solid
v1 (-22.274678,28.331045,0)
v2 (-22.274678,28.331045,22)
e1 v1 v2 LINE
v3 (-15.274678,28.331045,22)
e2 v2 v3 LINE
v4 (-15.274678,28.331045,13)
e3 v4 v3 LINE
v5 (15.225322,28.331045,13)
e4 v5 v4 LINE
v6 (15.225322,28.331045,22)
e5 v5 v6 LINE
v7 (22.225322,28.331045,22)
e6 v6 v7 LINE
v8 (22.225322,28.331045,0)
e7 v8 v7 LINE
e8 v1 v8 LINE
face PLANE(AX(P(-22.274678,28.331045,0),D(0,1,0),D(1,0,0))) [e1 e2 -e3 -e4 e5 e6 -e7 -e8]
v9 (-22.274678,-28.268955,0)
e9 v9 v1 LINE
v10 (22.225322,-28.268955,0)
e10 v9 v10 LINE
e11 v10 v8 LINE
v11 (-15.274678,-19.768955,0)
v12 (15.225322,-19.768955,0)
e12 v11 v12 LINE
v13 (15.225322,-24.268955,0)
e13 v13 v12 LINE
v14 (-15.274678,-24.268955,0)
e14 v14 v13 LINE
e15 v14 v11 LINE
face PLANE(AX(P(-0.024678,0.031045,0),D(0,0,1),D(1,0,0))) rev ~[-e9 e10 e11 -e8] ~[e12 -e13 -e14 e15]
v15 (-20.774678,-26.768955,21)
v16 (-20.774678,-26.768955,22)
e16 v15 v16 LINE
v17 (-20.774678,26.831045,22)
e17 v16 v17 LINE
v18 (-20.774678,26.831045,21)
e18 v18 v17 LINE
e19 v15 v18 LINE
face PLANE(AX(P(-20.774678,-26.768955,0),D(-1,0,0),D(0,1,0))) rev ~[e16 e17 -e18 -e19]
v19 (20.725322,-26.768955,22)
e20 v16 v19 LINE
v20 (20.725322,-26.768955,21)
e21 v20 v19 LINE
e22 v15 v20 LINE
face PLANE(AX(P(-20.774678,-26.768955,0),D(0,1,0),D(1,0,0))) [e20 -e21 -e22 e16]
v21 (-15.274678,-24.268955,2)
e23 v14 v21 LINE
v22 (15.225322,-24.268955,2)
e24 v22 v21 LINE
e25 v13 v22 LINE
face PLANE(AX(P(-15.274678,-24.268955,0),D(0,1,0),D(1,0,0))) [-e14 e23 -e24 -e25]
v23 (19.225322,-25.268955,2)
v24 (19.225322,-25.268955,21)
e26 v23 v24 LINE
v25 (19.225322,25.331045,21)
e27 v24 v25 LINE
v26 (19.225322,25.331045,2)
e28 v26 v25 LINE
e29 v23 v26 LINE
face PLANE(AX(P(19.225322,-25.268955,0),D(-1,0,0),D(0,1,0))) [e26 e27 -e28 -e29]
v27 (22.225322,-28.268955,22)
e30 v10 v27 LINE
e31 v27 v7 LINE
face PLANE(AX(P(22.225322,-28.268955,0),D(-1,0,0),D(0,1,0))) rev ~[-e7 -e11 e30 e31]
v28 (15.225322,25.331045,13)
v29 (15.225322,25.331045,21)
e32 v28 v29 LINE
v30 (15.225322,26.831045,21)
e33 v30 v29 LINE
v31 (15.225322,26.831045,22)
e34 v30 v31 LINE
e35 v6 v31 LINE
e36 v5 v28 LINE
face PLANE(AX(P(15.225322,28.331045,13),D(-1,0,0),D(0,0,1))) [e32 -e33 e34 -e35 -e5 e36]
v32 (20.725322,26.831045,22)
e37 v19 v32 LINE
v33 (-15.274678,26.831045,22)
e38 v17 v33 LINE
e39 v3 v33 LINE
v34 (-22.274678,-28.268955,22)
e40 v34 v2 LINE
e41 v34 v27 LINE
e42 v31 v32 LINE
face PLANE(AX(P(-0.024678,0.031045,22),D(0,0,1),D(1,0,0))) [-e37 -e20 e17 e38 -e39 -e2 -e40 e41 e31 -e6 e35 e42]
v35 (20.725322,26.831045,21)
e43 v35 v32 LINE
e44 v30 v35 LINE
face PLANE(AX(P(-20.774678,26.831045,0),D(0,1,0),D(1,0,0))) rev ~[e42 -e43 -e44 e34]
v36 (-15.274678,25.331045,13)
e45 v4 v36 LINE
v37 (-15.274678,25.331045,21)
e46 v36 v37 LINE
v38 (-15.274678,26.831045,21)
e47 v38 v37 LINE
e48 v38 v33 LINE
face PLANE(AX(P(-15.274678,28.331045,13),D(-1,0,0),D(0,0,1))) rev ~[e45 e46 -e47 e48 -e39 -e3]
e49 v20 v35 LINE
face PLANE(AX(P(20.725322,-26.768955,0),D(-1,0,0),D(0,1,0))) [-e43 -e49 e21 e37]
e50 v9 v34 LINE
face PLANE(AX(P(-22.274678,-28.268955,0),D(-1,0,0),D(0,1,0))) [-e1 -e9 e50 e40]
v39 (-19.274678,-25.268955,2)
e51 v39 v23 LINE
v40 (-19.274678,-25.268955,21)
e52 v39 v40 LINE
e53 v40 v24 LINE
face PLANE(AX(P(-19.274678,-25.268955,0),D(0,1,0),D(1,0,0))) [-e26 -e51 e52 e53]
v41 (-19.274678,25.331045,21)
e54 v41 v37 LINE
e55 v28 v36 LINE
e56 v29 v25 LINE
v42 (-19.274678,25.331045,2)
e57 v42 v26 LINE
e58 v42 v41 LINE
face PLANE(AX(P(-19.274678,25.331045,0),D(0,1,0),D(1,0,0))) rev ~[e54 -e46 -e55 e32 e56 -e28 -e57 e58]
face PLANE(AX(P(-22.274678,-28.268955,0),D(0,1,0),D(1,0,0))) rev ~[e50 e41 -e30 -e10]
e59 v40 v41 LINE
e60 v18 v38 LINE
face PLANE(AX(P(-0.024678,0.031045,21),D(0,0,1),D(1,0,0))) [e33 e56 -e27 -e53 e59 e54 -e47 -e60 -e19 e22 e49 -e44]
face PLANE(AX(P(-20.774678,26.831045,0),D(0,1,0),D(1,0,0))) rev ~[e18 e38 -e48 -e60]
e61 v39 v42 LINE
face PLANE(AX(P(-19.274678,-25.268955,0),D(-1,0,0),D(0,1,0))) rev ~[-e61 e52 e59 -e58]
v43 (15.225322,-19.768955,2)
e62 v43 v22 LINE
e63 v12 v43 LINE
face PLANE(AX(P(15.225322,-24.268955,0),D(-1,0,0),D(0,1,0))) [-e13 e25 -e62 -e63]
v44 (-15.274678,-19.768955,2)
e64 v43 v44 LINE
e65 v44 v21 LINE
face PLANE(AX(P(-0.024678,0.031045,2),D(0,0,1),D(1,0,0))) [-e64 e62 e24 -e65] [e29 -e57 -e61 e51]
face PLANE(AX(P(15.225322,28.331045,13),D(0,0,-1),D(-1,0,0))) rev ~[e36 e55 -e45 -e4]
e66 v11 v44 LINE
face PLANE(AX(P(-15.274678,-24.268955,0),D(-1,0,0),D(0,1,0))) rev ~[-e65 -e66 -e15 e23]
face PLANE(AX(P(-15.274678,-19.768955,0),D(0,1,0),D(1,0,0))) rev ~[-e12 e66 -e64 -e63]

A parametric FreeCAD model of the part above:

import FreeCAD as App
import Part
import Sketcher
from FreeCAD import Vector

doc = App.newDocument("Part")
body = doc.addObject("PartDesign::Body", "Body")

# Sketch on XY plane
sketch1 = body.newObject("Sketcher::SketchObject", "Sketch")
sketch1.AttachmentSupport = (doc.getObject("XY_Plane"), [""])
sketch1.MapMode = "FlatFace"
sketch1.addGeometry(Part.LineSegment(Vector(-19.274678, 25.331045, 0), Vector(-19.274678, -25.268955, 0)), False)
sketch1.addGeometry(Part.LineSegment(Vector(-19.274678, -25.268955, 0), Vector(19.225322, -25.268955, 0)), False)
sketch1.addGeometry(Part.LineSegment(Vector(19.225322, -25.268955, 0), Vector(19.225322, 25.331045, 0)), False)
sketch1.addGeometry(Part.LineSegment(Vector(19.225322, 25.331045, 0), Vector(-19.274678, 25.331045, 0)), False)
sketch1.addConstraint(Sketcher.Constraint("Coincident", 0, 2, 1, 1))
sketch1.addConstraint(Sketcher.Constraint("Coincident", 1, 2, 2, 1))
sketch1.addConstraint(Sketcher.Constraint("Coincident", 2, 2, 3, 1))
sketch1.addConstraint(Sketcher.Constraint("Coincident", 3, 2, 0, 1))
sketch1.addConstraint(Sketcher.Constraint("Vertical", 0))
sketch1.addConstraint(Sketcher.Constraint("Horizontal", 1))
sketch1.addConstraint(Sketcher.Constraint("Vertical", 2))
sketch1.addConstraint(Sketcher.Constraint("Horizontal", 3))
sketch1.addConstraint(Sketcher.Constraint("DistanceX", 1, 1, 1, 2, 38.5))
sketch1.addConstraint(Sketcher.Constraint("DistanceY", 0, 2, 0, 1, 50.6))
sketch1.addConstraint(Sketcher.Constraint("DistanceX", 0, 2, -1, 1, 19.274678))
sketch1.addConstraint(Sketcher.Constraint("DistanceY", 0, 2, -1, 1, 25.268955))
pad1 = body.newObject("PartDesign::Pad", "Pad")
pad1.Profile = sketch1
pad1.Length = 2

# Sketch on XY plane
sketch2 = body.newObject("Sketcher::SketchObject", "Sketch001")
sketch2.AttachmentSupport = (doc.getObject("XY_Plane"), [""])
sketch2.MapMode = "FlatFace"
sketch2.addGeometry(Part.LineSegment(Vector(-20.774678, 26.831045, 0), Vector(-20.774678, -26.768955, 0)), False)
sketch2.addGeometry(Part.LineSegment(Vector(-20.774678, -26.768955, 0), Vector(20.725322, -26.768955, 0)), False)
sketch2.addGeometry(Part.LineSegment(Vector(20.725322, -26.768955, 0), Vector(20.725322, 26.831045, 0)), False)
sketch2.addGeometry(Part.LineSegment(Vector(20.725322, 26.831045, 0), Vector(-20.774678, 26.831045, 0)), False)
sketch2.addGeometry(Part.LineSegment(Vector(19.225322, -25.268955, 0), Vector(-19.274678, -25.268955, 0)), False)
sketch2.addGeometry(Part.LineSegment(Vector(-19.274678, -25.268955, 0), Vector(-19.274678, 25.331045, 0)), False)
sketch2.addGeometry(Part.LineSegment(Vector(-19.274678, 25.331045, 0), Vector(19.225322, 25.331045, 0)), False)
sketch2.addGeometry(Part.LineSegment(Vector(19.225322, 25.331045, 0), Vector(19.225322, -25.268955, 0)), False)
sketch2.addConstraint(Sketcher.Constraint("Coincident", 0, 2, 1, 1))
sketch2.addConstraint(Sketcher.Constraint("Coincident", 1, 2, 2, 1))
sketch2.addConstraint(Sketcher.Constraint("Coincident", 2, 2, 3, 1))
sketch2.addConstraint(Sketcher.Constraint("Coincident", 3, 2, 0, 1))
sketch2.addConstraint(Sketcher.Constraint("Coincident", 4, 2, 5, 1))
sketch2.addConstraint(Sketcher.Constraint("Coincident", 5, 2, 6, 1))
sketch2.addConstraint(Sketcher.Constraint("Coincident", 6, 2, 7, 1))
sketch2.addConstraint(Sketcher.Constraint("Coincident", 7, 2, 4, 1))
sketch2.addConstraint(Sketcher.Constraint("Vertical", 0))
sketch2.addConstraint(Sketcher.Constraint("Horizontal", 1))
sketch2.addConstraint(Sketcher.Constraint("Vertical", 2))
sketch2.addConstraint(Sketcher.Constraint("Horizontal", 3))
sketch2.addConstraint(Sketcher.Constraint("Horizontal", 4))
sketch2.addConstraint(Sketcher.Constraint("Vertical", 5))
sketch2.addConstraint(Sketcher.Constraint("Horizontal", 6))
sketch2.addConstraint(Sketcher.Constraint("Vertical", 7))
sketch2.addConstraint(Sketcher.Constraint("DistanceX", 1, 1, 1, 2, 41.5))
sketch2.addConstraint(Sketcher.Constraint("DistanceX", 4, 2, 4, 1, 38.5))
sketch2.addConstraint(Sketcher.Constraint("DistanceY", 0, 2, 0, 1, 53.6))
sketch2.addConstraint(Sketcher.Constraint("DistanceY", 5, 1, 5, 2, 50.6))
sketch2.addConstraint(Sketcher.Constraint("DistanceX", 4, 2, 1, 2, 40.0))
sketch2.addConstraint(Sketcher.Constraint("DistanceY", 0, 2, 4, 2, 1.5))
sketch2.addConstraint(Sketcher.Constraint("DistanceX", 0, 2, -1, 1, 20.774678))
sketch2.addConstraint(Sketcher.Constraint("DistanceY", 0, 2, -1, 1, 26.768955))
pad2 = body.newObject("PartDesign::Pad", "Pad001")
pad2.Profile = sketch2
pad2.Length = 21

# Sketch on XY plane
sketch3 = body.newObject("Sketcher::SketchObject", "Sketch002")
sketch3.AttachmentSupport = (doc.getObject("XY_Plane"), [""])
sketch3.MapMode = "FlatFace"
sketch3.addGeometry(Part.LineSegment(Vector(-22.274678, 28.331045, 0), Vector(-22.274678, -28.268955, 0)), False)
sketch3.addGeometry(Part.LineSegment(Vector(-22.274678, -28.268955, 0), Vector(22.225322, -28.268955, 0)), False)
sketch3.addGeometry(Part.LineSegment(Vector(22.225322, -28.268955, 0), Vector(22.225322, 28.331045, 0)), False)
sketch3.addGeometry(Part.LineSegment(Vector(22.225322, 28.331045, 0), Vector(-22.274678, 28.331045, 0)), False)
sketch3.addGeometry(Part.LineSegment(Vector(20.725322, -26.768955, 0), Vector(-20.774678, -26.768955, 0)), False)
sketch3.addGeometry(Part.LineSegment(Vector(-20.774678, -26.768955, 0), Vector(-20.774678, 26.831045, 0)), False)
sketch3.addGeometry(Part.LineSegment(Vector(-20.774678, 26.831045, 0), Vector(20.725322, 26.831045, 0)), False)
sketch3.addGeometry(Part.LineSegment(Vector(20.725322, 26.831045, 0), Vector(20.725322, -26.768955, 0)), False)
sketch3.addConstraint(Sketcher.Constraint("Coincident", 0, 2, 1, 1))
sketch3.addConstraint(Sketcher.Constraint("Coincident", 1, 2, 2, 1))
sketch3.addConstraint(Sketcher.Constraint("Coincident", 2, 2, 3, 1))
sketch3.addConstraint(Sketcher.Constraint("Coincident", 3, 2, 0, 1))
sketch3.addConstraint(Sketcher.Constraint("Coincident", 4, 2, 5, 1))
sketch3.addConstraint(Sketcher.Constraint("Coincident", 5, 2, 6, 1))
sketch3.addConstraint(Sketcher.Constraint("Coincident", 6, 2, 7, 1))
sketch3.addConstraint(Sketcher.Constraint("Coincident", 7, 2, 4, 1))
sketch3.addConstraint(Sketcher.Constraint("Vertical", 0))
sketch3.addConstraint(Sketcher.Constraint("Horizontal", 1))
sketch3.addConstraint(Sketcher.Constraint("Vertical", 2))
sketch3.addConstraint(Sketcher.Constraint("Horizontal", 3))
sketch3.addConstraint(Sketcher.Constraint("Horizontal", 4))
sketch3.addConstraint(Sketcher.Constraint("Vertical", 5))
sketch3.addConstraint(Sketcher.Constraint("Horizontal", 6))
sketch3.addConstraint(Sketcher.Constraint("Vertical", 7))
sketch3.addConstraint(Sketcher.Constraint("DistanceX", 1, 1, 1, 2, 44.5))
sketch3.addConstraint(Sketcher.Constraint("DistanceX", 4, 2, 4, 1, 41.5))
sketch3.addConstraint(Sketcher.Constraint("DistanceY", 0, 2, 0, 1, 56.6))
sketch3.addConstraint(Sketcher.Constraint("DistanceY", 5, 1, 5, 2, 53.6))
sketch3.addConstraint(Sketcher.Constraint("DistanceX", 4, 2, 1, 2, 43.0))
sketch3.addConstraint(Sketcher.Constraint("DistanceY", 0, 2, 4, 2, 1.5))
sketch3.addConstraint(Sketcher.Constraint("DistanceX", 0, 2, -1, 1, 22.274678))
sketch3.addConstraint(Sketcher.Constraint("DistanceY", 0, 2, -1, 1, 28.268955))
pad3 = body.newObject("PartDesign::Pad", "Pad002")
pad3.Profile = sketch3
pad3.Length = 22

# Sketch on XZ plane
sketch4 = body.newObject("Sketcher::SketchObject", "Sketch003")
sketch4.AttachmentSupport = (doc.getObject("XZ_Plane"), [""])
sketch4.MapMode = "FlatFace"
sketch4.AttachmentOffset = App.Placement(Vector(0, 0, -28.331045), App.Rotation())
sketch4.addGeometry(Part.LineSegment(Vector(15.225322, 22, 0), Vector(15.225322, 13, 0)), False)
sketch4.addGeometry(Part.LineSegment(Vector(15.225322, 13, 0), Vector(-15.274678, 13, 0)), False)
sketch4.addGeometry(Part.LineSegment(Vector(-15.274678, 13, 0), Vector(-15.274678, 22, 0)), False)
sketch4.addGeometry(Part.LineSegment(Vector(-15.274678, 22, 0), Vector(15.225322, 22, 0)), False)
sketch4.addConstraint(Sketcher.Constraint("Coincident", 0, 2, 1, 1))
sketch4.addConstraint(Sketcher.Constraint("Coincident", 1, 2, 2, 1))
sketch4.addConstraint(Sketcher.Constraint("Coincident", 2, 2, 3, 1))
sketch4.addConstraint(Sketcher.Constraint("Coincident", 3, 2, 0, 1))
sketch4.addConstraint(Sketcher.Constraint("Vertical", 0))
sketch4.addConstraint(Sketcher.Constraint("Horizontal", 1))
sketch4.addConstraint(Sketcher.Constraint("Vertical", 2))
sketch4.addConstraint(Sketcher.Constraint("Horizontal", 3))
sketch4.addConstraint(Sketcher.Constraint("DistanceY", 0, 2, 0, 1, 9.0))
sketch4.addConstraint(Sketcher.Constraint("DistanceX", 1, 2, 1, 1, 30.5))
sketch4.addConstraint(Sketcher.Constraint("DistanceY", -1, 1, 0, 2, 13.0))
sketch4.addConstraint(Sketcher.Constraint("DistanceX", -1, 1, 0, 2, 15.225322))
pocket1 = body.newObject("PartDesign::Pocket", "Pocket")
pocket1.Profile = sketch4
pocket1.Length = 4
pocket1.Reversed = True

# Sketch on XY plane
sketch5 = body.newObject("Sketcher::SketchObject", "Sketch004")
sketch5.AttachmentSupport = (doc.getObject("XY_Plane"), [""])
sketch5.MapMode = "FlatFace"
sketch5.addGeometry(Part.LineSegment(Vector(-15.274678, -19.768955, 0), Vector(-15.274678, -24.268955, 0)), False)
sketch5.addGeometry(Part.LineSegment(Vector(-15.274678, -24.268955, 0), Vector(15.225322, -24.268955, 0)), False)
sketch5.addGeometry(Part.LineSegment(Vector(15.225322, -24.268955, 0), Vector(15.225322, -19.768955, 0)), False)
sketch5.addGeometry(Part.LineSegment(Vector(15.225322, -19.768955, 0), Vector(-15.274678, -19.768955, 0)), False)
sketch5.addConstraint(Sketcher.Constraint("Coincident", 0, 2, 1, 1))
sketch5.addConstraint(Sketcher.Constraint("Coincident", 1, 2, 2, 1))
sketch5.addConstraint(Sketcher.Constraint("Coincident", 2, 2, 3, 1))
sketch5.addConstraint(Sketcher.Constraint("Coincident", 3, 2, 0, 1))
sketch5.addConstraint(Sketcher.Constraint("Vertical", 0))
sketch5.addConstraint(Sketcher.Constraint("Horizontal", 1))
sketch5.addConstraint(Sketcher.Constraint("Vertical", 2))
sketch5.addConstraint(Sketcher.Constraint("Horizontal", 3))
sketch5.addConstraint(Sketcher.Constraint("DistanceX", 1, 1, 1, 2, 30.5))
sketch5.addConstraint(Sketcher.Constraint("DistanceY", 0, 2, 0, 1, 4.5))
sketch5.addConstraint(Sketcher.Constraint("DistanceX", 0, 2, -1, 1, 15.274678))
sketch5.addConstraint(Sketcher.Constraint("DistanceY", 0, 2, -1, 1, 24.268955))
pocket2 = body.newObject("PartDesign::Pocket", "Pocket001")
pocket2.Profile = sketch5
pocket2.Length = 4
pocket2.Reversed = True

doc.recompute()
